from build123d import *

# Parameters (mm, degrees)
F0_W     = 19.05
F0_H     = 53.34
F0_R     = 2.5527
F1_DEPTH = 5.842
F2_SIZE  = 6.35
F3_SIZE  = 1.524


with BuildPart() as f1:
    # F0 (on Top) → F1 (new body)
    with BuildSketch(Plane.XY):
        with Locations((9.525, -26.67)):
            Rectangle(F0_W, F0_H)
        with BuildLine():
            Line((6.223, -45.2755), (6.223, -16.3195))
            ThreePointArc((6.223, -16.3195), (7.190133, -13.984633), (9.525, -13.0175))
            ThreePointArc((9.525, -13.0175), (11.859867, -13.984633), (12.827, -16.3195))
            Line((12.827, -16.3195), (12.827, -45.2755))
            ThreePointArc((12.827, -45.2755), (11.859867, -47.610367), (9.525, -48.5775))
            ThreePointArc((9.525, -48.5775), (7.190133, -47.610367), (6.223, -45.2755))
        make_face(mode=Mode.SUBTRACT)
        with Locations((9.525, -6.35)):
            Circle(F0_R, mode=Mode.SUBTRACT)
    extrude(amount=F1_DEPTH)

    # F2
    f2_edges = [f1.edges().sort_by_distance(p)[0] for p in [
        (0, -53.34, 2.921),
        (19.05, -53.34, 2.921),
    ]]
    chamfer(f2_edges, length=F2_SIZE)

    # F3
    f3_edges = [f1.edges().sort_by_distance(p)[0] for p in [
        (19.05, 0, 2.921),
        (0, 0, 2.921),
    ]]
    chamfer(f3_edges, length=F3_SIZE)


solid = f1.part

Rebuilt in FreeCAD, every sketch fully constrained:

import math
import FreeCAD as App
import Part
import Sketcher

V = App.Vector
Q = App.Units.Quantity


def edges_at(feature, points):
    """Names of the edges that pass closest to the given points."""
    edges = feature.Shape.Edges
    near = lambda p: min(range(len(edges)), key=lambda i: edges[i].distToShape(Part.Vertex(*p))[0])
    return sorted({f"Edge{near(p) + 1}" for p in points})


def add_polygon(sketch, points):
    """Adds a closed chain of lines whose ends are joined by coincident constraints."""
    first, n = sketch.GeometryCount, len(points)
    for a, b in zip(points, points[1:] + points[:1]):
        sketch.addGeometry(Part.LineSegment(App.Vector(*a, 0), App.Vector(*b, 0)), False)
    for i in range(n):
        sketch.addConstraint(Sketcher.Constraint("Coincident", first + i, 2, first + (i + 1) % n, 1))

doc = App.newDocument("Part")
body = doc.addObject("PartDesign::Body", "Body")

sketch1 = doc.addObject("Sketcher::SketchObject", "Sketch")
body.addObject(sketch1)
sketch1.AttachmentSupport = (doc.XY_Plane, [""])
sketch1.MapMode = "FlatFace"
add_polygon(sketch1, [(0, 0), (0, -53.3), (19.1, -53.3), (19.1, 0)])
sketch1.addGeometry(Part.ArcOfCircle(Part.Circle(V(9.5, -45.3, 0), V(0, 0, 1), 3.3), math.radians(180), math.radians(270)), False)
sketch1.addGeometry(Part.LineSegment(V(6.2, -45.3, 0), V(6.2, -16.3, 0)), False)
sketch1.addGeometry(Part.ArcOfCircle(Part.Circle(V(9.5, -16.3, 0), V(0, 0, 1), 3.3), math.radians(90), math.radians(180)), False)
sketch1.addGeometry(Part.ArcOfCircle(Part.Circle(V(9.5, -16.3, 0), V(0, 0, 1), 3.3), math.radians(0), math.radians(90)), False)
sketch1.addGeometry(Part.LineSegment(V(12.8, -16.3, 0), V(12.8, -45.3, 0)), False)
sketch1.addGeometry(Part.ArcOfCircle(Part.Circle(V(9.5, -45.3, 0), V(0, 0, 1), 3.3), math.radians(-90), math.radians(0)), False)
sketch1.addGeometry(Part.Circle(V(9.5, -6.3, 0), V(0, 0, 1), 2.6), False)
sketch1.addConstraint([
    Sketcher.Constraint("Tangent", 4, 1, 5, 1),
    Sketcher.Constraint("Tangent", 5, 2, 6, 2),
    Sketcher.Constraint("Tangent", 6, 1, 7, 2),
    Sketcher.Constraint("Tangent", 7, 1, 8, 1),
    Sketcher.Constraint("Tangent", 8, 2, 9, 2),
    Sketcher.Constraint("Tangent", 9, 1, 4, 2),
    Sketcher.Constraint("Vertical", 0),
    Sketcher.Constraint("Horizontal", 1),
    Sketcher.Constraint("Vertical", 2),
    Sketcher.Constraint("Horizontal", 3),
    Sketcher.Constraint("Vertical", 5),
    Sketcher.Constraint("Vertical", 8),
    Sketcher.Constraint("Coincident", 3, 2, -1, 1),
    Sketcher.Constraint("Equal", 4, 6),
    Sketcher.Constraint("Equal", 6, 7),
    Sketcher.Constraint("Vertical", 9, 3, 10, 3),
    Sketcher.Constraint("Vertical", 10, 3, 6, 1),
    Sketcher.Constraint("Vertical", 6, 1, 9, 1),
    Sketcher.Constraint("Radius", 4, Q("0.1299999 in")),
    Sketcher.Constraint("Diameter", 10, Q("0.201 in")),
    Sketcher.Constraint("DistanceY", 0, 2, 0, 1, Q("2.1 in")),
    Sketcher.Constraint("DistanceX", 1, 1, 1, 2, Q("0.75 in")),
    Sketcher.Constraint("DistanceY", 5, 1, 5, 2, Q("1.14 in")),
    Sketcher.Constraint("DistanceY", 10, 3, -1, 1, Q("0.25 in")),
    Sketcher.Constraint("DistanceX", -1, 1, 4, 3, Q("0.3749999 in")),
    Sketcher.Constraint("DistanceY", 0, 2, 9, 1, Q("0.1875 in")),
])
pad1 = doc.addObject("PartDesign::Pad", "Pad")
body.addObject(pad1)
pad1.Profile = sketch1
pad1.Length = Q("0.23 in")
doc.recompute()

chamfer = doc.addObject("PartDesign::Chamfer", "Chamfer")
body.addObject(chamfer)
chamfer.Base = (pad1, edges_at(pad1, [(0, -53.34, 2.921), (19.05, -53.34, 2.921)]))
chamfer.Size = Q("0.25 in")
doc.recompute()

chamfer2 = doc.addObject("PartDesign::Chamfer", "Chamfer001")
body.addObject(chamfer2)
chamfer2.Base = (chamfer, edges_at(chamfer, [(19.05, 0, 2.921), (0, 0, 2.921)]))
chamfer2.Size = Q("0.06 in")

doc.recompute()
